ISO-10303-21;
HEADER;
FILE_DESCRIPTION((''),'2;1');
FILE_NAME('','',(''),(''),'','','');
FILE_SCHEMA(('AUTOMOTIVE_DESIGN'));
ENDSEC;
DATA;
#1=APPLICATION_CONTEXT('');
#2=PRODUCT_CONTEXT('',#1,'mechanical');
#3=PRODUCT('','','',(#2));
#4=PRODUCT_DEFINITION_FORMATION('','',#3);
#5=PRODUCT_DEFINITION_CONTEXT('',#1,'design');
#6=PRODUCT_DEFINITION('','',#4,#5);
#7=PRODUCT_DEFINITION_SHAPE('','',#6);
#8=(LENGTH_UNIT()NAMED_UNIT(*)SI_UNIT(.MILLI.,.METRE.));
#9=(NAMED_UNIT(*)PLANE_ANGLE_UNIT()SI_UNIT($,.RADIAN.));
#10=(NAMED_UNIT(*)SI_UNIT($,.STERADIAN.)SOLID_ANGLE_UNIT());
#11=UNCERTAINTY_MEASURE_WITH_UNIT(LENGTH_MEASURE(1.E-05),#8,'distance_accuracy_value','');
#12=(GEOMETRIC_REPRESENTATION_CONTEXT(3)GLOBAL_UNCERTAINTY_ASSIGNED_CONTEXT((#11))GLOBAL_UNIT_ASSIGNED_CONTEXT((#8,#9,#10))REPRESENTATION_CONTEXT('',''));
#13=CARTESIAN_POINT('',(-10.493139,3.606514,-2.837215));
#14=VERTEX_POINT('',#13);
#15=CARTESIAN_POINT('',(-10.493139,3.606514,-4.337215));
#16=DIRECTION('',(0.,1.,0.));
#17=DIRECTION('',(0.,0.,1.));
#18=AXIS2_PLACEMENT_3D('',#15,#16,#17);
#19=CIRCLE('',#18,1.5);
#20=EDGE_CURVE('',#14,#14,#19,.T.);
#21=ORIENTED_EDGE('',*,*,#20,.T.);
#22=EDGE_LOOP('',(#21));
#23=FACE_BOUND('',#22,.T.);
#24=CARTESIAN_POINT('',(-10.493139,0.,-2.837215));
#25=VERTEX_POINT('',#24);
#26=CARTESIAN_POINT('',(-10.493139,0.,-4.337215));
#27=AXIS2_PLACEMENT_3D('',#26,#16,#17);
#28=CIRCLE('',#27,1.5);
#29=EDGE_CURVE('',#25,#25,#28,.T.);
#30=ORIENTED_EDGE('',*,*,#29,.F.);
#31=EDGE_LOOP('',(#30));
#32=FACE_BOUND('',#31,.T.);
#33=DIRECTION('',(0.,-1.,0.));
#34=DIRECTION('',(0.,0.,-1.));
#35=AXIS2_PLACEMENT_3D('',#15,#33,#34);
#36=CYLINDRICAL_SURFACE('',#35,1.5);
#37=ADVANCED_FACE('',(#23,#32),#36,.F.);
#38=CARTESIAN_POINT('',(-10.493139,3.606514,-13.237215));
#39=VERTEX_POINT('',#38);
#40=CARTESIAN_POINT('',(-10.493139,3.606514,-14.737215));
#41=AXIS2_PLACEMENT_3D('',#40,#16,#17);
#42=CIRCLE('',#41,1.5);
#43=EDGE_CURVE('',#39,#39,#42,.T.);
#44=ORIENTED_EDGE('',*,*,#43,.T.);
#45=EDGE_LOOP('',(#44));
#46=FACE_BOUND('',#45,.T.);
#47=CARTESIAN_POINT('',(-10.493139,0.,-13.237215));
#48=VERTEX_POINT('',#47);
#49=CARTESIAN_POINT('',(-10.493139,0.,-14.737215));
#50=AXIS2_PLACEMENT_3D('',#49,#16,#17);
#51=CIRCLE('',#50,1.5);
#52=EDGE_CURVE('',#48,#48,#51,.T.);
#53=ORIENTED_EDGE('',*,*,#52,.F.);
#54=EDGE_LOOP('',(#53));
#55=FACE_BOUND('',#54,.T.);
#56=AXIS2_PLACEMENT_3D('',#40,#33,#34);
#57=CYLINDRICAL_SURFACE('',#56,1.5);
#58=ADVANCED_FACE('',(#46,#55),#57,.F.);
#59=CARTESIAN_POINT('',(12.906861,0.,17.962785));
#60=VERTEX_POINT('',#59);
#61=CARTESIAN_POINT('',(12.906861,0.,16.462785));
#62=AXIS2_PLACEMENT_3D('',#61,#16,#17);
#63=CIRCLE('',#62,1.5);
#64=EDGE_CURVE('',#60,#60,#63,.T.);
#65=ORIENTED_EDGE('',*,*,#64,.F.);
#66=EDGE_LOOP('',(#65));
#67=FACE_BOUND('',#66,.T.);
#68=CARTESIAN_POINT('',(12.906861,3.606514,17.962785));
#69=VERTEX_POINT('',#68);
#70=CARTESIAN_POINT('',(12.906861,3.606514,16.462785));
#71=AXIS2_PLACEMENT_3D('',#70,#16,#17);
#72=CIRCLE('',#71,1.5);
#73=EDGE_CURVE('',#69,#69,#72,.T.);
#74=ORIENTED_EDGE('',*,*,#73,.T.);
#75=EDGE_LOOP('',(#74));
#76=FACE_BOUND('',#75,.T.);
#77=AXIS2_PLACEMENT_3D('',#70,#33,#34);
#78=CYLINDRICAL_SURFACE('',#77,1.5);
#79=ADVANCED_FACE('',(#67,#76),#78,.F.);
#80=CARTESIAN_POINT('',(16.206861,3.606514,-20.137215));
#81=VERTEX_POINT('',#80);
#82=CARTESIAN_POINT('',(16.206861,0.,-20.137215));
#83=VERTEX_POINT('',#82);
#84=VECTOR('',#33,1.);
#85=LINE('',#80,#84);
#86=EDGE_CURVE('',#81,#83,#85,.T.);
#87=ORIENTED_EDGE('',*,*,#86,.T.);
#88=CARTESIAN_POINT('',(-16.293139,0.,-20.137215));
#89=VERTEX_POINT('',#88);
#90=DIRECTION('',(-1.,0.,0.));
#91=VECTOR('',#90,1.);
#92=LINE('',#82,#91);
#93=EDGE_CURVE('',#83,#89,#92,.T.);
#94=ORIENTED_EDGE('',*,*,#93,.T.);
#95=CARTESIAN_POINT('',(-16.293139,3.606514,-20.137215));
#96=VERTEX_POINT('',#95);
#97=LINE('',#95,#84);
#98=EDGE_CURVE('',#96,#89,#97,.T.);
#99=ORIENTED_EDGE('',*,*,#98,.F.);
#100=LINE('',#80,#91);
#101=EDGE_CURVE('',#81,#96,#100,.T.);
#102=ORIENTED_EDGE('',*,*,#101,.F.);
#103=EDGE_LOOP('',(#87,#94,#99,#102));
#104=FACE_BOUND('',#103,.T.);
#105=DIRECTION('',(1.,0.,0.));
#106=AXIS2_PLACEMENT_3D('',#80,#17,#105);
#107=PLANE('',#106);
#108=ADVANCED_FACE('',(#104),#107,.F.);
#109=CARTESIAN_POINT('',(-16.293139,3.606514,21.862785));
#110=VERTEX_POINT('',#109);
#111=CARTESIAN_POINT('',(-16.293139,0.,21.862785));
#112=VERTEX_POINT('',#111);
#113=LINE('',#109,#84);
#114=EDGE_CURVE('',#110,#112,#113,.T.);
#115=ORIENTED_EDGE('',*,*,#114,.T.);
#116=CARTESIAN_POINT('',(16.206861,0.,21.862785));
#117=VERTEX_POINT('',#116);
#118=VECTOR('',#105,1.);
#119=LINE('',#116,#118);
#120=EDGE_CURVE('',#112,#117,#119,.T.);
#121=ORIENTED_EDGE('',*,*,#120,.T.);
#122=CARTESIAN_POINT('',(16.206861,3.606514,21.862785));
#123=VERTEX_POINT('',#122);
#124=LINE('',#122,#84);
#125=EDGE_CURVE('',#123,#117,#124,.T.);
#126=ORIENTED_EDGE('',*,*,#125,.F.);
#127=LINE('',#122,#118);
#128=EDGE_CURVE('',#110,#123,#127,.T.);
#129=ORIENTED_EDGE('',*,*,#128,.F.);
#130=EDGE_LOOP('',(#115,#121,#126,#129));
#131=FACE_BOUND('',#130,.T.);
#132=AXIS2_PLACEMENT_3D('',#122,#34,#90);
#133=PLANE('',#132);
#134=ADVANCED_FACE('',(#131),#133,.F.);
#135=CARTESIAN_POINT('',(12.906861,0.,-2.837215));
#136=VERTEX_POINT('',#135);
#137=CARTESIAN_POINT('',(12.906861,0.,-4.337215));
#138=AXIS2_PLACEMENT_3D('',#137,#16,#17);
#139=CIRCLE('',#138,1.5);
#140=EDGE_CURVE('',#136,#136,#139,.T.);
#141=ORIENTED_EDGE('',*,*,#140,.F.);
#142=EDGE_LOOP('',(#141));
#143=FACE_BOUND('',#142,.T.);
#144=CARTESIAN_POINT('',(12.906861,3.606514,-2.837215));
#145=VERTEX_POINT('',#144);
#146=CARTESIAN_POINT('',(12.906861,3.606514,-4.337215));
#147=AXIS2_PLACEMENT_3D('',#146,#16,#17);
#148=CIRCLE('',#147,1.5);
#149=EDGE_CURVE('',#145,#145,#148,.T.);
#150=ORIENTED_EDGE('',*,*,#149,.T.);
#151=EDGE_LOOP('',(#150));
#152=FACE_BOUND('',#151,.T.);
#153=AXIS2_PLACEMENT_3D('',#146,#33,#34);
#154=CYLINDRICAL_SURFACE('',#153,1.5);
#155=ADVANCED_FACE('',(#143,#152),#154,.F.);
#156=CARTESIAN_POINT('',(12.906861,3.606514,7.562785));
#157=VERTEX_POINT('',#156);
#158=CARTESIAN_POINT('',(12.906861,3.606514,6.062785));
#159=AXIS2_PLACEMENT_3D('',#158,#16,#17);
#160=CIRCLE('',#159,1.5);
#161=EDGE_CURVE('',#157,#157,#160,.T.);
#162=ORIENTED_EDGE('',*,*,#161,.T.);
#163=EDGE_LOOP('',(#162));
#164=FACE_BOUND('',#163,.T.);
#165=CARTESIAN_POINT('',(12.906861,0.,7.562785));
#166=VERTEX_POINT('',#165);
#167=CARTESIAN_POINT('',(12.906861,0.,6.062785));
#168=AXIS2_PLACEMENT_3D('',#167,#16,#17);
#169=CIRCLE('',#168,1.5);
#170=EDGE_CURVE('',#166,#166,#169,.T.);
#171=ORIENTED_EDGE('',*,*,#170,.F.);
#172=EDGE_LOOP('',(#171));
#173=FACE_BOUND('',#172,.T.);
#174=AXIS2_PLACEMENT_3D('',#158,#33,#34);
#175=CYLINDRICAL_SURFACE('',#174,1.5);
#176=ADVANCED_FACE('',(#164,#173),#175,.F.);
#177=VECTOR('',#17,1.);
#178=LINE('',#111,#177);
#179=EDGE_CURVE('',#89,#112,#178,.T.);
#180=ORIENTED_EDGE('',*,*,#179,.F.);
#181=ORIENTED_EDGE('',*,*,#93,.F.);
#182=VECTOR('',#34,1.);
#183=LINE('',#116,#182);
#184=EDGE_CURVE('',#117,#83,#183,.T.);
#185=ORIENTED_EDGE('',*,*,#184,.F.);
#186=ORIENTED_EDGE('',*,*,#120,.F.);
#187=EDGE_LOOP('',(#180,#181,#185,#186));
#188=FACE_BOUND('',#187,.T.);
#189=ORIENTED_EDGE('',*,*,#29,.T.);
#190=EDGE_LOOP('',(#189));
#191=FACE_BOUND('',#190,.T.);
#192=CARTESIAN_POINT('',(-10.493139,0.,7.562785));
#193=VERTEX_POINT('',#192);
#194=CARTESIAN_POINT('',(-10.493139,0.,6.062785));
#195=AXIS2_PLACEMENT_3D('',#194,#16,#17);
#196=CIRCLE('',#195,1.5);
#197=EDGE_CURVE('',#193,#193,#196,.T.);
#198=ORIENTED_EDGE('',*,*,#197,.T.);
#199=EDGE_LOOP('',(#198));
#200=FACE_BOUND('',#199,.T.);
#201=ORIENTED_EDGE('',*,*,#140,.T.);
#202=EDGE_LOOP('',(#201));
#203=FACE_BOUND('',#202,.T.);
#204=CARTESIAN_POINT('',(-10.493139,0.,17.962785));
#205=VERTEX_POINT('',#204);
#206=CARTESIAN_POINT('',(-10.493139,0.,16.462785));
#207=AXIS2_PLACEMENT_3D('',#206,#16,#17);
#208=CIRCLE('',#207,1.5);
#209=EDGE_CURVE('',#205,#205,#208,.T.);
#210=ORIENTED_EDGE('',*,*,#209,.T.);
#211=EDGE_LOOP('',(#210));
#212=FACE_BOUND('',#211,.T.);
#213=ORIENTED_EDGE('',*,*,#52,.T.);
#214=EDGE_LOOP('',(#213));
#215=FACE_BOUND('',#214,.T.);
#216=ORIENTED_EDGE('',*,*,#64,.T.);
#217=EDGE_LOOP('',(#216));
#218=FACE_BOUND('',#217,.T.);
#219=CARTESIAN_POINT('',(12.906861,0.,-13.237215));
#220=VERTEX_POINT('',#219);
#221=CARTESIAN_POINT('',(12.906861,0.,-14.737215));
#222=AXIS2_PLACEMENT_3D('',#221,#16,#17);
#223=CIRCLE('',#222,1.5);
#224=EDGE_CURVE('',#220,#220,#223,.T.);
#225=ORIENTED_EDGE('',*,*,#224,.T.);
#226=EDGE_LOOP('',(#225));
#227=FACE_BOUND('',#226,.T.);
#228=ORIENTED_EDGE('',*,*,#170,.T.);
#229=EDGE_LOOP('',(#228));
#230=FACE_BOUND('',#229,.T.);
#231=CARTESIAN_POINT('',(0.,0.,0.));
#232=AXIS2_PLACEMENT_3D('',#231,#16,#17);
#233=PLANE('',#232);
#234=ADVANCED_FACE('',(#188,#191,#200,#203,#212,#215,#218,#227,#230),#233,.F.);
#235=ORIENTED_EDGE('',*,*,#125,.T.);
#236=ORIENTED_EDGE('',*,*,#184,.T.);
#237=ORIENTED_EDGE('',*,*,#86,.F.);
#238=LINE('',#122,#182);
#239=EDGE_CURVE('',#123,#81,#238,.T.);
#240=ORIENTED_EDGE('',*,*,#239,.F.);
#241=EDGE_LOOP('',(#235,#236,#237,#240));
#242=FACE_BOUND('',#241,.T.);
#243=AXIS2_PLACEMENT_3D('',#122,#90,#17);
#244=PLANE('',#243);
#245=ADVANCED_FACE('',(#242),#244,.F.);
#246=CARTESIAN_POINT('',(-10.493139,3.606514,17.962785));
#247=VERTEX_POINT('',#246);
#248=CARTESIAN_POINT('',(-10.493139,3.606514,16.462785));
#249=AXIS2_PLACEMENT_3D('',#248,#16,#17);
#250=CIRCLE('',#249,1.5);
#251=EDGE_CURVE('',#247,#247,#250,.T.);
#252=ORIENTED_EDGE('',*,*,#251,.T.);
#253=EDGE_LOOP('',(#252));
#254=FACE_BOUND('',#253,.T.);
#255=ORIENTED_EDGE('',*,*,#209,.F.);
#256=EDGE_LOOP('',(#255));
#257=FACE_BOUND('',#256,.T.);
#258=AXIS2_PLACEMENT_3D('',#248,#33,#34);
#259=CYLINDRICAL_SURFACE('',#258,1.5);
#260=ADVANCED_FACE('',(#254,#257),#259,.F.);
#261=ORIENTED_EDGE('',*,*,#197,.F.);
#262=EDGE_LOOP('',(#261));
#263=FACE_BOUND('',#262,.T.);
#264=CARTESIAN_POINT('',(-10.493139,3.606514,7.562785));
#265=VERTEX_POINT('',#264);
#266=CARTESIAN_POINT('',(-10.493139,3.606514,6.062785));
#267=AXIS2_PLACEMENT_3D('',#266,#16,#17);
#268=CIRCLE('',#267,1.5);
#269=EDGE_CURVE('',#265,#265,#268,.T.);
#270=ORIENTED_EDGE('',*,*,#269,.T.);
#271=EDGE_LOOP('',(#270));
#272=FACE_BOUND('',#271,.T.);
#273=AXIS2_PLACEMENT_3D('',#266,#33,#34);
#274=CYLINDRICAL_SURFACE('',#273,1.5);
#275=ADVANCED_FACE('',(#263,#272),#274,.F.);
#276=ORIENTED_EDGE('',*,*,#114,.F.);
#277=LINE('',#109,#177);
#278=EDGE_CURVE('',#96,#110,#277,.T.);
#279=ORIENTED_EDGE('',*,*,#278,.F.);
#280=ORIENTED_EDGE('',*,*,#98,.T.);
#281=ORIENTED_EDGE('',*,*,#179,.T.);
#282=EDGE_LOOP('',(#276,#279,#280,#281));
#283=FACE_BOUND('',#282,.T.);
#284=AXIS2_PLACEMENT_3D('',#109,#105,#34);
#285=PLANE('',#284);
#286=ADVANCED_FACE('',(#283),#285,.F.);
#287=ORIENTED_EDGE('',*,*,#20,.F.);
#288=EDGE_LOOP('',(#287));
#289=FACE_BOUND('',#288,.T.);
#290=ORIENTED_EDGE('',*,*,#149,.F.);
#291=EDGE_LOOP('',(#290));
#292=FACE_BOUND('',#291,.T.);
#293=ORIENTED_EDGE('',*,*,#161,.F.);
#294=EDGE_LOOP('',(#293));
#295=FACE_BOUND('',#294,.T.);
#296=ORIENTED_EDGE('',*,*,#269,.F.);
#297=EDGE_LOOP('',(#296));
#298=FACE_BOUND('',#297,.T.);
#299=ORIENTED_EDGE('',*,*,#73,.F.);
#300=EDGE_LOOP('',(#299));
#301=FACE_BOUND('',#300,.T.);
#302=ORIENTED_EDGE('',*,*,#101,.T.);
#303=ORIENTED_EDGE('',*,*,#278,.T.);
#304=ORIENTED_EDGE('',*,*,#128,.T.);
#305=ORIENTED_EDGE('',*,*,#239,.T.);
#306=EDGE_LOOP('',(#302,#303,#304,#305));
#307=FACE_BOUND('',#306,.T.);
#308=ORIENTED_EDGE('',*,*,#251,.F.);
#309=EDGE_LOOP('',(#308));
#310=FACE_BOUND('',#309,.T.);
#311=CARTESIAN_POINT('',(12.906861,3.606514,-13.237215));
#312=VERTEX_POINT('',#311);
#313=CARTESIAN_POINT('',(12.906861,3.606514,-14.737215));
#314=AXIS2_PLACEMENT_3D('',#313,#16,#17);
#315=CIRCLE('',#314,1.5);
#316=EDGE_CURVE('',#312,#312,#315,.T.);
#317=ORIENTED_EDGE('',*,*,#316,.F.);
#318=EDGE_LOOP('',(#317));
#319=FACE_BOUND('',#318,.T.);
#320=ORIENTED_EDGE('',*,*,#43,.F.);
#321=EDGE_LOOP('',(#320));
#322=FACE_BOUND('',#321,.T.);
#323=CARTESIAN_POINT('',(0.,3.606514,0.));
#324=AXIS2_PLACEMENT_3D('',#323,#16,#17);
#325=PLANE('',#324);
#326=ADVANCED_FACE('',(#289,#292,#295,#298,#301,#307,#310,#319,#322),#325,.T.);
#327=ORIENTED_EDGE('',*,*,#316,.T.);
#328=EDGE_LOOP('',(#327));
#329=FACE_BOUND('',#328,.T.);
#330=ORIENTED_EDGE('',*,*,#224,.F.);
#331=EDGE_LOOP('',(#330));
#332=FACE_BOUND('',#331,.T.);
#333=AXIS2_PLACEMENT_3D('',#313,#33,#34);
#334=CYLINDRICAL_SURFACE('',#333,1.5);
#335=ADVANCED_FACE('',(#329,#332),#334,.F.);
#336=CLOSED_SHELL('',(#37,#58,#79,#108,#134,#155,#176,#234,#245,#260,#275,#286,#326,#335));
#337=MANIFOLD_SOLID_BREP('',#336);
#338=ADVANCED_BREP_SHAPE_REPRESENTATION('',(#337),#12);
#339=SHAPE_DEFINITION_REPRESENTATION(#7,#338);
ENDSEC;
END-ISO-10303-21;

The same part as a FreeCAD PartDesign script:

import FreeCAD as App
import Part
import Sketcher

V = App.Vector

doc = App.newDocument("Part")
params = doc.addObject("Spreadsheet::Sheet", "Params")
for row, (alias, value) in enumerate([
    ("sketch1_diameter", "3 mm"),
    ("sketch1_height", "42 mm"),
    ("sketch1_width", "32.5 mm"),
    ("pad1_length", "3.606514 mm"),
], start=1):
    params.set(f"A{row}", alias)
    params.set(f"B{row}", "=" + value)
    params.setAlias(f"B{row}", alias)

body = doc.addObject("PartDesign::Body", "Body")

sketch1 = body.newObject("Sketcher::SketchObject", "Sketch")
sketch1.AttachmentSupport = (doc.getObject("XZ_Plane"), [""])
sketch1.MapMode = "FlatFace"
sketch1.addGeometry([
    Part.LineSegment(V(-16.3, -20.1, 0), V(-16.3, 21.9, 0)),
    Part.LineSegment(V(-16.3, 21.9, 0), V(16.2, 21.9, 0)),
    Part.LineSegment(V(16.2, 21.9, 0), V(16.2, -20.1, 0)),
    Part.LineSegment(V(16.2, -20.1, 0), V(-16.3, -20.1, 0)),
    Part.Circle(V(-10.5, 16.5, 0), V(0, 0, 1), 1.5),
    Part.Circle(V(-10.5, 6.1, 0), V(0, 0, 1), 1.5),
    Part.Circle(V(12.9, 16.5, 0), V(0, 0, 1), 1.5),
    Part.Circle(V(12.9, 6.1, 0), V(0, 0, 1), 1.5),
    Part.Circle(V(-10.5, -4.3, 0), V(0, 0, 1), 1.5),
    Part.Circle(V(-10.5, -14.7, 0), V(0, 0, 1), 1.5),
    Part.Circle(V(12.9, -4.3, 0), V(0, 0, 1), 1.5),
    Part.Circle(V(12.9, -14.7, 0), V(0, 0, 1), 1.5),
], False)
sketch1.addConstraint([
    Sketcher.Constraint("Coincident", 0, 2, 1, 1),
    Sketcher.Constraint("Coincident", 1, 2, 2, 1),
    Sketcher.Constraint("Coincident", 2, 2, 3, 1),
    Sketcher.Constraint("Coincident", 3, 2, 0, 1),
    Sketcher.Constraint("Vertical", 0),
    Sketcher.Constraint("Horizontal", 1),
    Sketcher.Constraint("Vertical", 2),
    Sketcher.Constraint("Horizontal", 3),
    Sketcher.Constraint("Equal", 4, 5),
    Sketcher.Constraint("Equal", 5, 6),
    Sketcher.Constraint("Equal", 6, 7),
    Sketcher.Constraint("Equal", 7, 8),
    Sketcher.Constraint("Equal", 8, 9),
    Sketcher.Constraint("Equal", 9, 10),
    Sketcher.Constraint("Equal", 10, 11),
    Sketcher.Constraint("Horizontal", 4, 3, 6, 3),
    Sketcher.Constraint("Horizontal", 5, 3, 7, 3),
    Sketcher.Constraint("Horizontal", 8, 3, 10, 3),
    Sketcher.Constraint("Horizontal", 9, 3, 11, 3),
    Sketcher.Constraint("Vertical", 4, 3, 5, 3),
    Sketcher.Constraint("Vertical", 6, 3, 7, 3),
    Sketcher.Constraint("Vertical", 5, 3, 8, 3),
    Sketcher.Constraint("Vertical", 8, 3, 9, 3),
    Sketcher.Constraint("Vertical", 7, 3, 10, 3),
    Sketcher.Constraint("Vertical", 10, 3, 11, 3),
    Sketcher.Constraint("Diameter", 4, 3.0),
    Sketcher.Constraint("DistanceY", 0, 1, 0, 2, 42.0),
    Sketcher.Constraint("DistanceX", 1, 1, 1, 2, 32.5),
    Sketcher.Constraint("DistanceY", 5, 3, 4, 3, 10.4),
    Sketcher.Constraint("DistanceX", 4, 3, 6, 3, 23.4),
    Sketcher.Constraint("DistanceY", 8, 3, 5, 3, 10.4),
    Sketcher.Constraint("DistanceY", 9, 3, 8, 3, 10.4),
    Sketcher.Constraint("DistanceX", 0, 2, 4, 3, 5.8),
    Sketcher.Constraint("DistanceY", 4, 3, 0, 2, 5.4),
    Sketcher.Constraint("DistanceX", 4, 3, -1, 1, 10.493139),
    Sketcher.Constraint("DistanceY", -1, 1, 4, 3, 16.462785),
])
sketch1.setExpression("Constraints[25]", "Params.sketch1_diameter")
sketch1.setExpression("Constraints[26]", "Params.sketch1_height")
sketch1.setExpression("Constraints[27]", "Params.sketch1_width")
pad1 = body.newObject("PartDesign::Pad", "Pad")
pad1.Profile = sketch1
pad1.setExpression("Length", "Params.pad1_length")
pad1.Reversed = True

doc.recompute()
